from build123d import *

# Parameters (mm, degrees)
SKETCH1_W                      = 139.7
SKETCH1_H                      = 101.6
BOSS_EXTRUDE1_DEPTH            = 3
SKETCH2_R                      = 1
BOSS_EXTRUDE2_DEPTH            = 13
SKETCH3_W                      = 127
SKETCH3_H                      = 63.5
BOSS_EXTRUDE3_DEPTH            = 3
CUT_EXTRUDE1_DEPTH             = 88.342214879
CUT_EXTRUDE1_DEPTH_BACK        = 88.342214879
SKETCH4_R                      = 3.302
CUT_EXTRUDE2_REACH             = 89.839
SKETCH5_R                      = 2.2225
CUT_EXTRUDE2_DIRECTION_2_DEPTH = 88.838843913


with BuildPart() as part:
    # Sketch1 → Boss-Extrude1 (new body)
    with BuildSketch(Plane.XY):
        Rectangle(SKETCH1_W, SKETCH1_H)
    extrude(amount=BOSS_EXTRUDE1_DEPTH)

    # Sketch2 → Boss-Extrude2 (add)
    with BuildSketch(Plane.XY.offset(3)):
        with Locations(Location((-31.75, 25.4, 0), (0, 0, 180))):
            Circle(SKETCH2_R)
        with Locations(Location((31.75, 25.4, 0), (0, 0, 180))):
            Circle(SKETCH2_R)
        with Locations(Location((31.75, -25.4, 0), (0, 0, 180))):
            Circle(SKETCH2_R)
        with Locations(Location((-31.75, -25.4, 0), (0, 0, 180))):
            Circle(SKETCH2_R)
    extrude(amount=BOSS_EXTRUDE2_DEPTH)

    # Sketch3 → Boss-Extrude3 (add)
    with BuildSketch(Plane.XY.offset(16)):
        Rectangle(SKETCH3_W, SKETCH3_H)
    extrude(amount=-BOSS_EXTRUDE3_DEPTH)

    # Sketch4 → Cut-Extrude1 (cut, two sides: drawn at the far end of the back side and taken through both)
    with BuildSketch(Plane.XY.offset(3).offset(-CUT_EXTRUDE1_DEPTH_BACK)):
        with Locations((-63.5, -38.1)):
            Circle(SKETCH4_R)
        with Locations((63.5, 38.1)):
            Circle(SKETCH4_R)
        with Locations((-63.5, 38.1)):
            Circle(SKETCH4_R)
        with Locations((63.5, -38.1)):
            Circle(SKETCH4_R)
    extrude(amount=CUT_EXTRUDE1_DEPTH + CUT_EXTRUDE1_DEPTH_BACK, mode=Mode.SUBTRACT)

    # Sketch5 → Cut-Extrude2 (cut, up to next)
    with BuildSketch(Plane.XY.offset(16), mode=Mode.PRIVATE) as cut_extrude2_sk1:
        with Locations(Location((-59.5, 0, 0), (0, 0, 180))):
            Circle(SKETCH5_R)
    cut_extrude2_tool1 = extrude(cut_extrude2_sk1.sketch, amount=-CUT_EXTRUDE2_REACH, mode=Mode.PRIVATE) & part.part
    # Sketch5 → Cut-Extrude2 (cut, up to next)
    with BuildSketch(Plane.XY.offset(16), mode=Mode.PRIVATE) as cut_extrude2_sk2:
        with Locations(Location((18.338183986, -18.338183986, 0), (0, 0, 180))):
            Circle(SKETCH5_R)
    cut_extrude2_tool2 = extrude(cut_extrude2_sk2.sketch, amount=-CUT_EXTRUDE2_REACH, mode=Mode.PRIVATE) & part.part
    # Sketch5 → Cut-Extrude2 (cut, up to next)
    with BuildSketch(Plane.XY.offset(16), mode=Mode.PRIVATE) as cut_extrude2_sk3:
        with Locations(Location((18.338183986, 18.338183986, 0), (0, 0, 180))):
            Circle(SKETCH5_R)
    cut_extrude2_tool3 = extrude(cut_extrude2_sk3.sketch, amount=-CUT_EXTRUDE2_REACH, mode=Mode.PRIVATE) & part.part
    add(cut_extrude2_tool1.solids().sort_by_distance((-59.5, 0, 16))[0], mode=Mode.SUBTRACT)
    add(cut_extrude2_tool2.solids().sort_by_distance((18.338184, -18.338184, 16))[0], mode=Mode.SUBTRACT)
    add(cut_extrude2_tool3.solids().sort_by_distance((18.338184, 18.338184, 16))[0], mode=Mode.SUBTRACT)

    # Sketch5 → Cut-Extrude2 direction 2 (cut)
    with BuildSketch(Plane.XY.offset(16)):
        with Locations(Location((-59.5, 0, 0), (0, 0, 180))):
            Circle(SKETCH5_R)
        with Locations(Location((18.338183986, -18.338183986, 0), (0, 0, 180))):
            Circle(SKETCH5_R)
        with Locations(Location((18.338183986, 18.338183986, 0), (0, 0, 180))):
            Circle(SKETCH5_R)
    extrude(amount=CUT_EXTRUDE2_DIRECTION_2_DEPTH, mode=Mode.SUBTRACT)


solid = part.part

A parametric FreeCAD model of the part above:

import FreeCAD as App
import Part
import Sketcher

V = App.Vector
Q = App.Units.Quantity

doc = App.newDocument("Part")
body = doc.addObject("PartDesign::Body", "Body")

# Sketch on XY plane
sketch1 = body.newObject("Sketcher::SketchObject", "Sketch")
sketch1.AttachmentSupport = (doc.getObject("XY_Plane"), [""])
sketch1.MapMode = "FlatFace"
sketch1.addGeometry([
    Part.LineSegment(V(-70, 51, 0), V(-70, -51, 0)),
    Part.LineSegment(V(-70, -51, 0), V(70, -51, 0)),
    Part.LineSegment(V(70, -51, 0), V(70, 51, 0)),
    Part.LineSegment(V(70, 51, 0), V(-70, 51, 0)),
], False)
sketch1.addConstraint([
    Sketcher.Constraint("Coincident", 0, 2, 1, 1),
    Sketcher.Constraint("Coincident", 1, 2, 2, 1),
    Sketcher.Constraint("Coincident", 2, 2, 3, 1),
    Sketcher.Constraint("Coincident", 3, 2, 0, 1),
    Sketcher.Constraint("Vertical", 0),
    Sketcher.Constraint("Horizontal", 1),
    Sketcher.Constraint("Vertical", 2),
    Sketcher.Constraint("Horizontal", 3),
    Sketcher.Constraint("Symmetric", 0, 2, 2, 2, -1, 1),
    Sketcher.Constraint("DistanceY", 0, 2, 0, 1, Q("4 in")),
    Sketcher.Constraint("DistanceX", 1, 1, 1, 2, Q("5.5 in")),
])
pad1 = body.newObject("PartDesign::Pad", "Pad")
pad1.Profile = sketch1
pad1.Length = 3

# Sketch on XY plane
sketch2 = body.newObject("Sketcher::SketchObject", "Sketch001")
sketch2.AttachmentSupport = (doc.getObject("XY_Plane"), [""])
sketch2.MapMode = "FlatFace"
sketch2.AttachmentOffset = App.Placement(V(0, 0, 3), App.Rotation())
sketch2.addGeometry([
    Part.Circle(V(-31.8, 25.4, 0), V(0, 0, 1), 1),
    Part.Circle(V(31.8, 25.4, 0), V(0, 0, 1), 1),
    Part.Circle(V(31.8, -25.4, 0), V(0, 0, 1), 1),
    Part.Circle(V(-31.8, -25.4, 0), V(0, 0, 1), 1),
], False)
sketch2.addConstraint([
    Sketcher.Constraint("Equal", 0, 1),
    Sketcher.Constraint("Equal", 1, 2),
    Sketcher.Constraint("Equal", 2, 3),
    Sketcher.Constraint("Symmetric", 0, 3, 2, 3, -1, 1),
    Sketcher.Constraint("Symmetric", 1, 3, 3, 3, -1, 1),
    Sketcher.Constraint("Symmetric", 0, 3, 1, 3, -2),
    Sketcher.Constraint("DistanceY", -1, 1, 0, 3, Q("1 in")),
    Sketcher.Constraint("DistanceX", 0, 3, 1, 3, Q("2.5 in")),
    Sketcher.Constraint("Diameter", 0, Q("2 mm")),
])
pad2 = body.newObject("PartDesign::Pad", "Pad001")
pad2.Profile = sketch2
pad2.Length = 13

# Sketch on XY plane
sketch3 = body.newObject("Sketcher::SketchObject", "Sketch002")
sketch3.AttachmentSupport = (doc.getObject("XY_Plane"), [""])
sketch3.MapMode = "FlatFace"
sketch3.AttachmentOffset = App.Placement(V(0, 0, 16), App.Rotation())
sketch3.addGeometry([
    Part.LineSegment(V(-64, 32, 0), V(-64, -32, 0)),
    Part.LineSegment(V(-64, -32, 0), V(64, -32, 0)),
    Part.LineSegment(V(64, -32, 0), V(64, 32, 0)),
    Part.LineSegment(V(64, 32, 0), V(-64, 32, 0)),
], False)
sketch3.addConstraint([
    Sketcher.Constraint("Coincident", 0, 2, 1, 1),
    Sketcher.Constraint("Coincident", 1, 2, 2, 1),
    Sketcher.Constraint("Coincident", 2, 2, 3, 1),
    Sketcher.Constraint("Coincident", 3, 2, 0, 1),
    Sketcher.Constraint("Vertical", 0),
    Sketcher.Constraint("Horizontal", 1),
    Sketcher.Constraint("Vertical", 2),
    Sketcher.Constraint("Horizontal", 3),
    Sketcher.Constraint("Symmetric", 0, 2, 2, 2, -1, 1),
    Sketcher.Constraint("DistanceX", 1, 1, 1, 2, Q("5 in")),
    Sketcher.Constraint("DistanceY", 0, 2, 0, 1, Q("2.5 in")),
])
pad3 = body.newObject("PartDesign::Pad", "Pad002")
pad3.Profile = sketch3
pad3.Length = 3
pad3.Reversed = True

# Sketch on XY plane
sketch4 = body.newObject("Sketcher::SketchObject", "Sketch003")
sketch4.AttachmentSupport = (doc.getObject("XY_Plane"), [""])
sketch4.MapMode = "FlatFace"
sketch4.AttachmentOffset = App.Placement(V(0, 0, 3), App.Rotation())
sketch4.addGeometry([
    Part.Circle(V(-63.5, -38.1, 0), V(0, 0, 1), 3.3),
    Part.Circle(V(63.5, 38.1, 0), V(0, 0, 1), 3.3),
    Part.Circle(V(-63.5, 38.1, 0), V(0, 0, 1), 3.3),
    Part.Circle(V(63.5, -38.1, 0), V(0, 0, 1), 3.3),
], False)
sketch4.addConstraint([
    Sketcher.Constraint("Equal", 0, 1),
    Sketcher.Constraint("Equal", 1, 2),
    Sketcher.Constraint("Equal", 2, 3),
    Sketcher.Constraint("Symmetric", 0, 3, 1, 3, -1, 1),
    Sketcher.Constraint("Symmetric", 2, 3, 3, 3, -1, 1),
    Sketcher.Constraint("Symmetric", 1, 3, 2, 3, -2),
    Sketcher.Constraint("Diameter", 0, Q("0.26 in")),
    Sketcher.Constraint("DistanceX", 0, 3, 1, 3, Q("5 in")),
    Sketcher.Constraint("DistanceY", 0, 3, 1, 3, Q("3 in")),
])
pocket1 = body.newObject("PartDesign::Pocket", "Pocket")
pocket1.Profile = sketch4
pocket1.Type = "ThroughAll"
pocket1.Midplane = True

# Sketch on XY plane
sketch5 = body.newObject("Sketcher::SketchObject", "Sketch004")
sketch5.AttachmentSupport = (doc.getObject("XY_Plane"), [""])
sketch5.MapMode = "FlatFace"
sketch5.AttachmentOffset = App.Placement(V(0, 0, 16), App.Rotation())
sketch5.addGeometry(Part.Circle(V(-59.5, 0, 0), V(0, 0, 1), 2.2), False)
sketch5.addConstraint([
    Sketcher.Constraint("PointOnObject", 0, 3, -1),
    Sketcher.Constraint("Diameter", 0, Q("0.175 in")),
    Sketcher.Constraint("DistanceX", 0, 3, -1, 1, Q("59.5 mm")),
])
pocket2 = body.newObject("PartDesign::Pocket", "Pocket001")
pocket2.Profile = sketch5
pocket2.Type = "UpToFirst"

# Sketch on XY plane
sketch6 = body.newObject("Sketcher::SketchObject", "Sketch005")
sketch6.AttachmentSupport = (doc.getObject("XY_Plane"), [""])
sketch6.MapMode = "FlatFace"
sketch6.AttachmentOffset = App.Placement(V(0, 0, 16), App.Rotation())
sketch6.addGeometry(Part.Circle(V(18.3, -18.3, 0), V(0, 0, 1), 2.2), False)
sketch6.addConstraint([
    Sketcher.Constraint("Diameter", 0, Q("0.175 in")),
    Sketcher.Constraint("DistanceX", -1, 1, 0, 3, Q("18.338184 mm")),
    Sketcher.Constraint("DistanceY", 0, 3, -1, 1, Q("18.338184 mm")),
])
pocket3 = body.newObject("PartDesign::Pocket", "Pocket002")
pocket3.Profile = sketch6
pocket3.Type = "UpToFirst"

# Sketch on XY plane
sketch7 = body.newObject("Sketcher::SketchObject", "Sketch006")
sketch7.AttachmentSupport = (doc.getObject("XY_Plane"), [""])
sketch7.MapMode = "FlatFace"
sketch7.AttachmentOffset = App.Placement(V(0, 0, 16), App.Rotation())
sketch7.addGeometry(Part.Circle(V(18.3, 18.3, 0), V(0, 0, 1), 2.2), False)
sketch7.addConstraint([
    Sketcher.Constraint("Diameter", 0, Q("0.175 in")),
    Sketcher.Constraint("DistanceX", -1, 1, 0, 3, Q("18.338184 mm")),
    Sketcher.Constraint("DistanceY", -1, 1, 0, 3, Q("18.338184 mm")),
])
pocket4 = body.newObject("PartDesign::Pocket", "Pocket003")
pocket4.Profile = sketch7
pocket4.Type = "UpToFirst"

# Sketch on XY plane
sketch8 = body.newObject("Sketcher::SketchObject", "Sketch007")
sketch8.AttachmentSupport = (doc.getObject("XY_Plane"), [""])
sketch8.MapMode = "FlatFace"
sketch8.AttachmentOffset = App.Placement(V(0, 0, 16), App.Rotation())
sketch8.addGeometry([
    Part.Circle(V(-59.5, 0, 0), V(0, 0, 1), 2.2),
    Part.Circle(V(18.3, -18.3, 0), V(0, 0, 1), 2.2),
    Part.Circle(V(18.3, 18.3, 0), V(0, 0, 1), 2.2),
], False)
sketch8.addConstraint([
    Sketcher.Constraint("Equal", 0, 1),
    Sketcher.Constraint("Equal", 1, 2),
    Sketcher.Constraint("Symmetric", 1, 3, 2, 3, -1),
    Sketcher.Constraint("PointOnObject", 0, 3, -1),
    Sketcher.Constraint("Diameter", 0, Q("0.175 in")),
    Sketcher.Constraint("DistanceX", 0, 3, -1, 1, Q("59.5 mm")),
    Sketcher.Constraint("DistanceX", -1, 1, 1, 3, Q("18.338184 mm")),
    Sketcher.Constraint("DistanceY", 1, 3, -1, 1, Q("18.338184 mm")),
])
pocket5 = body.newObject("PartDesign::Pocket", "Pocket004")
pocket5.Profile = sketch8
pocket5.Length = 88.838844
pocket5.Reversed = True

doc.recompute()
